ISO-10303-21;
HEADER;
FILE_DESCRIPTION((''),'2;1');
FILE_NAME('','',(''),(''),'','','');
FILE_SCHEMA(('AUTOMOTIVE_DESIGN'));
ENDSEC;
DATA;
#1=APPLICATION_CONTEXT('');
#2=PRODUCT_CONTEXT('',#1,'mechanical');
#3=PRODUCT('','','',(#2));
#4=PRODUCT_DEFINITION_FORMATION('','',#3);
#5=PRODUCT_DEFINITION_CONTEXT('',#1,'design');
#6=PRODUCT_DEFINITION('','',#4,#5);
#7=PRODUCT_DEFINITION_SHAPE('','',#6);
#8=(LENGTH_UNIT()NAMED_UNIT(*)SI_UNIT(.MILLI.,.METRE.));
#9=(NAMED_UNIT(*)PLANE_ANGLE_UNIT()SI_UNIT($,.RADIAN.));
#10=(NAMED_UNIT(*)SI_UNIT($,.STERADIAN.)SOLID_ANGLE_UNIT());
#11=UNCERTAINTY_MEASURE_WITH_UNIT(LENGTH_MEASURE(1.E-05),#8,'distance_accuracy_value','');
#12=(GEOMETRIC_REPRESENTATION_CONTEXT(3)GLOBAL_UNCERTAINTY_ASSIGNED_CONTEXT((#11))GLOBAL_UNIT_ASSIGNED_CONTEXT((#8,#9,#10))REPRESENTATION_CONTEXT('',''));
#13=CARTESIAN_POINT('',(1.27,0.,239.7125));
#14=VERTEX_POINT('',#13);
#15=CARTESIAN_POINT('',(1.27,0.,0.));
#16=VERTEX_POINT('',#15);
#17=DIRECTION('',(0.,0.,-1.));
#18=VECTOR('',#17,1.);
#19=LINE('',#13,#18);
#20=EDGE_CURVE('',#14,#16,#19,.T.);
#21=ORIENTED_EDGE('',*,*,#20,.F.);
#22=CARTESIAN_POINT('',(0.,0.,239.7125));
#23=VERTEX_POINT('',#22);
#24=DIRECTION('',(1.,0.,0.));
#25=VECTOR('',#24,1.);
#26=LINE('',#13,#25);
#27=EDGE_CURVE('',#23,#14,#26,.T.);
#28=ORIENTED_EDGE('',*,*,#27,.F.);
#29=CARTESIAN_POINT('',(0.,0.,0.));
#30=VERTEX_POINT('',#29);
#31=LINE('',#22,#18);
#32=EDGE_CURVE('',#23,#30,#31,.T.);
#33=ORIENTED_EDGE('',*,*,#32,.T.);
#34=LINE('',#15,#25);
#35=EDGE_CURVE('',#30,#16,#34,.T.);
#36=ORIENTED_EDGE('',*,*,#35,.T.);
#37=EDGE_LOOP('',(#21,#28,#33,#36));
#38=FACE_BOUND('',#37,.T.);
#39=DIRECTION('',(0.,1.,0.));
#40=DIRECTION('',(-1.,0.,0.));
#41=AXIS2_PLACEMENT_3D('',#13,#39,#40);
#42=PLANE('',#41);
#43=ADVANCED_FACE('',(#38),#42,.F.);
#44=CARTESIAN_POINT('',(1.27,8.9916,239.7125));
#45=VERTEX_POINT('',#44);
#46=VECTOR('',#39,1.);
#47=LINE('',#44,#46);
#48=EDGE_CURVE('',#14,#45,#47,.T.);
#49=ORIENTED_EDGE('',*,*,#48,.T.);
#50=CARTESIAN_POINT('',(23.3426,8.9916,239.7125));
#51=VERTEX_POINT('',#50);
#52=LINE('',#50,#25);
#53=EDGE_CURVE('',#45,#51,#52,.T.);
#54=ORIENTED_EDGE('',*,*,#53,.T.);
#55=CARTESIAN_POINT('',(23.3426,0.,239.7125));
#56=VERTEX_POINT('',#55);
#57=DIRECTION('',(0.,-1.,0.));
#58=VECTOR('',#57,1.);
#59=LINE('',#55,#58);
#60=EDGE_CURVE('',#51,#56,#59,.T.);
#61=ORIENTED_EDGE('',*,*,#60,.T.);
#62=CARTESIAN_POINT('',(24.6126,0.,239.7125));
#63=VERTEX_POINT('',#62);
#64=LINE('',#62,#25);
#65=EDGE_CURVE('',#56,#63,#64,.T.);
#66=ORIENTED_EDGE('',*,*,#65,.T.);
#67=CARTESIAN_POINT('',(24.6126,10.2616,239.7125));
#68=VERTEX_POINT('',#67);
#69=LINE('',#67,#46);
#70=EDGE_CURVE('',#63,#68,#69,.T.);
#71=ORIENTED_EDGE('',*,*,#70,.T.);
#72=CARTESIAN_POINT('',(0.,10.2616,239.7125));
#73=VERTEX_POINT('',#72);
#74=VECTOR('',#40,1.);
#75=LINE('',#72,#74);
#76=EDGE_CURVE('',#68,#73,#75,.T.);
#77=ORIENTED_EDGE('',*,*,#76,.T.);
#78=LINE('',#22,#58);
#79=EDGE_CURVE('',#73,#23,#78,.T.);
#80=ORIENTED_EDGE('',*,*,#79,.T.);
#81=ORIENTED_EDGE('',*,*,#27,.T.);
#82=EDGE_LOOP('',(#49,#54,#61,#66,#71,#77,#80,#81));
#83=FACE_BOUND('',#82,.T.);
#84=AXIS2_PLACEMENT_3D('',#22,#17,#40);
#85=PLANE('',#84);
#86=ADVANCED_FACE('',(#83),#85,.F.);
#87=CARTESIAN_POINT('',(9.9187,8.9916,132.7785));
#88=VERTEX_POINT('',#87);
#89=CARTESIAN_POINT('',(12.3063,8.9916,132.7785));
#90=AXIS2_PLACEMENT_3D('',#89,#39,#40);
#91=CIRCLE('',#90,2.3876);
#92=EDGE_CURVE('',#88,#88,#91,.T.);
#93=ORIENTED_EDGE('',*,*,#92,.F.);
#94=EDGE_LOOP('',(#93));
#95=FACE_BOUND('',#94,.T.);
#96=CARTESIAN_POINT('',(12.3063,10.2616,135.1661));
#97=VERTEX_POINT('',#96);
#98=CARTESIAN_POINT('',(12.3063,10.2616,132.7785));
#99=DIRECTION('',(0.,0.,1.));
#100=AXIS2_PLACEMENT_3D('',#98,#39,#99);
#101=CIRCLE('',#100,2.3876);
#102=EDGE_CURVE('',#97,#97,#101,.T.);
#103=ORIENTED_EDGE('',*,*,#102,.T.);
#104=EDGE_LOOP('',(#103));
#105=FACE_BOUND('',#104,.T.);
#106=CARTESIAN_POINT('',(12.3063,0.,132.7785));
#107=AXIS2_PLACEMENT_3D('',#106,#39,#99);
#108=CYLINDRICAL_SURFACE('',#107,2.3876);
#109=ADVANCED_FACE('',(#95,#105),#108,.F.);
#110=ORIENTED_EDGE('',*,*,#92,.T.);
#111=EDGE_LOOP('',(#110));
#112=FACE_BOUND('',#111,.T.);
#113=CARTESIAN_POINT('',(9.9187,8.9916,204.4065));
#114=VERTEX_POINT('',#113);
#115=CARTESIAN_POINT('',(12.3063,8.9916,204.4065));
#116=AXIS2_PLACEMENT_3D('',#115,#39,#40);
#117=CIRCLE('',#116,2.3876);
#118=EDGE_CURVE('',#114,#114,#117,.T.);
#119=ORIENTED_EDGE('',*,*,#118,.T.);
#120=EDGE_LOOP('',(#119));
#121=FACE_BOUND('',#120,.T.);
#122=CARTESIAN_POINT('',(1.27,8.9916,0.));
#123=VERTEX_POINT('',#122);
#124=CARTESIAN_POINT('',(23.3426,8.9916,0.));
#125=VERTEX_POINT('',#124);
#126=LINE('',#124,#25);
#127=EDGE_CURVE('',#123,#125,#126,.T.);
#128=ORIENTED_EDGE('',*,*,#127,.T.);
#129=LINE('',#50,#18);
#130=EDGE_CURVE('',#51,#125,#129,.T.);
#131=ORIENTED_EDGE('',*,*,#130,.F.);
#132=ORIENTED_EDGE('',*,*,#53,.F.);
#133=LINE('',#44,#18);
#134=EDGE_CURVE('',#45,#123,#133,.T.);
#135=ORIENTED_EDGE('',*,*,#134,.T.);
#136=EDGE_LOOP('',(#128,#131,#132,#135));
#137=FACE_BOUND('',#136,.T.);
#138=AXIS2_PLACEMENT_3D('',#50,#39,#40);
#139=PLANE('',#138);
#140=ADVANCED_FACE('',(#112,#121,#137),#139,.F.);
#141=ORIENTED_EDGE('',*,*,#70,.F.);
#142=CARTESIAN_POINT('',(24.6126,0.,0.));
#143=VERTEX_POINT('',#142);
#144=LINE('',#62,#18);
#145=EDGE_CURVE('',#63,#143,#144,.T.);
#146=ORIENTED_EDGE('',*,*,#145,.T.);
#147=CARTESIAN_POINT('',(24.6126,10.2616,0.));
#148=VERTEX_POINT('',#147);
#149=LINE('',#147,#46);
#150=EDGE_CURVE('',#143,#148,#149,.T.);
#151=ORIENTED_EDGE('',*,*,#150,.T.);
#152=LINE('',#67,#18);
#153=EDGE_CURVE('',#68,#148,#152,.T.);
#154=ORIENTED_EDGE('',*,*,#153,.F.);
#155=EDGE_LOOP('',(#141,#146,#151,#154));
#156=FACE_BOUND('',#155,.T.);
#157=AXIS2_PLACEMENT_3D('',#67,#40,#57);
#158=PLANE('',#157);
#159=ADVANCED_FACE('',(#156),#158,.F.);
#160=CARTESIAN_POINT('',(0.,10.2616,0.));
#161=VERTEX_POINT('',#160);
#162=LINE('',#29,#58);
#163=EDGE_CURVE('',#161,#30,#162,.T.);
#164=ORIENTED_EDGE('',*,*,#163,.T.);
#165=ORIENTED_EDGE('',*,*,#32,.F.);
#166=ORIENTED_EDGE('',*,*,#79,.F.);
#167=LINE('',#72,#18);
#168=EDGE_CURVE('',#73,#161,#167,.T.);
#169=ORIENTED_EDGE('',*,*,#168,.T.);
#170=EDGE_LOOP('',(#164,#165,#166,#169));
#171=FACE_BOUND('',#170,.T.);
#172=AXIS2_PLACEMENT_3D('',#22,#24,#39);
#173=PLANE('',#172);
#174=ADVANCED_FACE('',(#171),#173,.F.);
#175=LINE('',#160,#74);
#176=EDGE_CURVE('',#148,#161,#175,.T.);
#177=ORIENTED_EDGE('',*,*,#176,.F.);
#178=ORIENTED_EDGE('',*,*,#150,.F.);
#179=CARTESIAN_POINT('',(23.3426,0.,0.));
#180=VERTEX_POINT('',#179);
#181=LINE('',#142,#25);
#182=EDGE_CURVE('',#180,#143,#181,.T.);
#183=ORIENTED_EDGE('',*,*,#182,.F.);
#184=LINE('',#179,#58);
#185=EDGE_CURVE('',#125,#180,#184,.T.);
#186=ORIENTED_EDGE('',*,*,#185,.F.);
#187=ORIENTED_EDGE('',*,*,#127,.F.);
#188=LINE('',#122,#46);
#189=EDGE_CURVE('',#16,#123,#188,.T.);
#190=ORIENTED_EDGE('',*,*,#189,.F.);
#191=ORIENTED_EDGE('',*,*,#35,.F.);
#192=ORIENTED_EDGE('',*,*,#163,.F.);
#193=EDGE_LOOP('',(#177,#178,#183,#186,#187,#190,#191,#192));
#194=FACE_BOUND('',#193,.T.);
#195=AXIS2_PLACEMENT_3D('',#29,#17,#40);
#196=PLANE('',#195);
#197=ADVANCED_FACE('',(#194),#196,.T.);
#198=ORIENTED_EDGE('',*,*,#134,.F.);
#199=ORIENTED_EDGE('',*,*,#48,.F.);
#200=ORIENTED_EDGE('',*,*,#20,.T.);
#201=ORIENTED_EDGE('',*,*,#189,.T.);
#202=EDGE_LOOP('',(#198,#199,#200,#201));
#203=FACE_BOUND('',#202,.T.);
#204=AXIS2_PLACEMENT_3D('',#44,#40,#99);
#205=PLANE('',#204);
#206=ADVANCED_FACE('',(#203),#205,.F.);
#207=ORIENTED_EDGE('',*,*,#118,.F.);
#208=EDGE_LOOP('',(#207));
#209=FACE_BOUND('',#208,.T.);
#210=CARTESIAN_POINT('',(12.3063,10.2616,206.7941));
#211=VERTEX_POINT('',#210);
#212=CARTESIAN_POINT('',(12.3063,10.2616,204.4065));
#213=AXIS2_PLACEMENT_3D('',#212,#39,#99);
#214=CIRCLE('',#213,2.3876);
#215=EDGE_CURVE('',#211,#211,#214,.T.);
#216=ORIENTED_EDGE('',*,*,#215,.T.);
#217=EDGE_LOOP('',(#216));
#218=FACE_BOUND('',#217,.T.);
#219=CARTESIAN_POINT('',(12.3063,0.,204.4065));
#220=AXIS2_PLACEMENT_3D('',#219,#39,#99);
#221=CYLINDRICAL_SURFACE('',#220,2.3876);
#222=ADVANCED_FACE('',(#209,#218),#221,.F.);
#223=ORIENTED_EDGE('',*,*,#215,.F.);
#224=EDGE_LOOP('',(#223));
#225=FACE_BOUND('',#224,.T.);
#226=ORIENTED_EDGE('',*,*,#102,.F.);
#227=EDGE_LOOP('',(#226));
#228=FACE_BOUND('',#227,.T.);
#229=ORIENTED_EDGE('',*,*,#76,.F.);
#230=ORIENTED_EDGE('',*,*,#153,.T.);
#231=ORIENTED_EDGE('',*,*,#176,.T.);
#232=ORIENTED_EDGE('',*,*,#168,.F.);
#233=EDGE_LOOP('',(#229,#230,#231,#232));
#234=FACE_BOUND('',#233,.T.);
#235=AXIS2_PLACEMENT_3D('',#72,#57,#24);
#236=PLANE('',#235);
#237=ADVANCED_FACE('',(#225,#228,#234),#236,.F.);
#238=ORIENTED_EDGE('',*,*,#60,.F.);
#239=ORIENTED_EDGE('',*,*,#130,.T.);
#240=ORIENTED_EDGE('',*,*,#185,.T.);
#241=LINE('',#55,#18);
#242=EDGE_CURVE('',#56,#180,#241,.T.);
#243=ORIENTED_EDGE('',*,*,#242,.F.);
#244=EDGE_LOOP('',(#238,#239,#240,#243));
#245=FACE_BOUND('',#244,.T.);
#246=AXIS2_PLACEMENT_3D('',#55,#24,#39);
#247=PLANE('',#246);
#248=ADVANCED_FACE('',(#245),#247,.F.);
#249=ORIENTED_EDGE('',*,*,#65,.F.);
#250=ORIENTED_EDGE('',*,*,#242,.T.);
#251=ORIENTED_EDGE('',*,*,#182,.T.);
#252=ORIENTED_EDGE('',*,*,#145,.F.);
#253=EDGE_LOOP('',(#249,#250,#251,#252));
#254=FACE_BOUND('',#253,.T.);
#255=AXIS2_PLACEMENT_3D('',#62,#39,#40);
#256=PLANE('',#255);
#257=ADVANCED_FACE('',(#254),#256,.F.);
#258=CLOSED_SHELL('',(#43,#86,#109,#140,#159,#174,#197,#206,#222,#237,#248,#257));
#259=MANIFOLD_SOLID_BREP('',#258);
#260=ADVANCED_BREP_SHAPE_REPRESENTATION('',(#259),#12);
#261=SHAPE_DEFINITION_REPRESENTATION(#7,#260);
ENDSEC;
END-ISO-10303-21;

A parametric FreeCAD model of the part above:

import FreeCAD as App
import Part
import Sketcher

V = App.Vector
Q = App.Units.Quantity


def add_polygon(sketch, points):
    """Adds a closed chain of lines whose ends are joined by coincident constraints."""
    first, n = sketch.GeometryCount, len(points)
    for a, b in zip(points, points[1:] + points[:1]):
        sketch.addGeometry(Part.LineSegment(App.Vector(*a, 0), App.Vector(*b, 0)), False)
    for i in range(n):
        sketch.addConstraint(Sketcher.Constraint("Coincident", first + i, 2, first + (i + 1) % n, 1))

doc = App.newDocument("Part")
body = doc.addObject("PartDesign::Body", "Body")

# Sketch on XY plane
sketch1 = body.newObject("Sketcher::SketchObject", "Sketch")
sketch1.AttachmentSupport = (doc.getObject("XY_Plane"), [""])
sketch1.MapMode = "FlatFace"
add_polygon(sketch1, [(0, 10.3), (0, 0), (1.3, 0), (1.3, 9), (23.3, 9), (23.3, 0), (24.6, 0), (24.6, 10.3)])  # lines 0-7
sketch1.addConstraint([
    Sketcher.Constraint("Vertical", 0),
    Sketcher.Constraint("Horizontal", 1),
    Sketcher.Constraint("Vertical", 2),
    Sketcher.Constraint("Horizontal", 3),
    Sketcher.Constraint("Vertical", 4),
    Sketcher.Constraint("Horizontal", 5),
    Sketcher.Constraint("Vertical", 6),
    Sketcher.Constraint("Horizontal", 7),
    Sketcher.Constraint("Coincident", 0, 2, -1, 1),
    Sketcher.Constraint("PointOnObject", 4, 2, -1),
    Sketcher.Constraint("Equal", 1, 5),
    Sketcher.Constraint("DistanceX", 1, 1, 1, 2, Q("0.05 in")),
    Sketcher.Constraint("DistanceX", 3, 1, 3, 2, Q("0.869 in")),
    Sketcher.Constraint("DistanceY", 0, 2, 0, 1, Q("0.404 in")),
    Sketcher.Constraint("DistanceY", 2, 1, 2, 2, Q("0.354 in")),
])
pad1 = body.newObject("PartDesign::Pad", "Pad")
pad1.Profile = sketch1
pad1.Length = Q("9.4375 in")

# Sketch on XZ plane
sketch2 = body.newObject("Sketcher::SketchObject", "Sketch001")
sketch2.AttachmentSupport = (doc.getObject("XZ_Plane"), [""])
sketch2.MapMode = "FlatFace"
sketch2.AttachmentOffset = App.Placement(V(0, 0, -0.404 * 25.4), App.Rotation())
sketch2.addGeometry([
    Part.Circle(V(12.3, 204.4, 0), V(0, 0, 1), 2.4),
    Part.Circle(V(12.3, 132.8, 0), V(0, 0, 1), 2.4),
], False)
sketch2.addConstraint([
    Sketcher.Constraint("Equal", 0, 1),
    Sketcher.Constraint("Vertical", 0, 3, 1, 3),
    Sketcher.Constraint("Diameter", 0, Q("0.188 in")),
    Sketcher.Constraint("DistanceY", 1, 3, 0, 3, Q("2.82 in")),
    Sketcher.Constraint("DistanceX", -1, 1, 0, 3, Q("0.4845 in")),
    Sketcher.Constraint("DistanceY", -1, 1, 0, 3, Q("8.0475 in")),
])
pocket1 = body.newObject("PartDesign::Pocket", "Pocket")
pocket1.Profile = sketch2
pocket1.Type = "ThroughAll"
pocket1.Reversed = True

doc.recompute()
